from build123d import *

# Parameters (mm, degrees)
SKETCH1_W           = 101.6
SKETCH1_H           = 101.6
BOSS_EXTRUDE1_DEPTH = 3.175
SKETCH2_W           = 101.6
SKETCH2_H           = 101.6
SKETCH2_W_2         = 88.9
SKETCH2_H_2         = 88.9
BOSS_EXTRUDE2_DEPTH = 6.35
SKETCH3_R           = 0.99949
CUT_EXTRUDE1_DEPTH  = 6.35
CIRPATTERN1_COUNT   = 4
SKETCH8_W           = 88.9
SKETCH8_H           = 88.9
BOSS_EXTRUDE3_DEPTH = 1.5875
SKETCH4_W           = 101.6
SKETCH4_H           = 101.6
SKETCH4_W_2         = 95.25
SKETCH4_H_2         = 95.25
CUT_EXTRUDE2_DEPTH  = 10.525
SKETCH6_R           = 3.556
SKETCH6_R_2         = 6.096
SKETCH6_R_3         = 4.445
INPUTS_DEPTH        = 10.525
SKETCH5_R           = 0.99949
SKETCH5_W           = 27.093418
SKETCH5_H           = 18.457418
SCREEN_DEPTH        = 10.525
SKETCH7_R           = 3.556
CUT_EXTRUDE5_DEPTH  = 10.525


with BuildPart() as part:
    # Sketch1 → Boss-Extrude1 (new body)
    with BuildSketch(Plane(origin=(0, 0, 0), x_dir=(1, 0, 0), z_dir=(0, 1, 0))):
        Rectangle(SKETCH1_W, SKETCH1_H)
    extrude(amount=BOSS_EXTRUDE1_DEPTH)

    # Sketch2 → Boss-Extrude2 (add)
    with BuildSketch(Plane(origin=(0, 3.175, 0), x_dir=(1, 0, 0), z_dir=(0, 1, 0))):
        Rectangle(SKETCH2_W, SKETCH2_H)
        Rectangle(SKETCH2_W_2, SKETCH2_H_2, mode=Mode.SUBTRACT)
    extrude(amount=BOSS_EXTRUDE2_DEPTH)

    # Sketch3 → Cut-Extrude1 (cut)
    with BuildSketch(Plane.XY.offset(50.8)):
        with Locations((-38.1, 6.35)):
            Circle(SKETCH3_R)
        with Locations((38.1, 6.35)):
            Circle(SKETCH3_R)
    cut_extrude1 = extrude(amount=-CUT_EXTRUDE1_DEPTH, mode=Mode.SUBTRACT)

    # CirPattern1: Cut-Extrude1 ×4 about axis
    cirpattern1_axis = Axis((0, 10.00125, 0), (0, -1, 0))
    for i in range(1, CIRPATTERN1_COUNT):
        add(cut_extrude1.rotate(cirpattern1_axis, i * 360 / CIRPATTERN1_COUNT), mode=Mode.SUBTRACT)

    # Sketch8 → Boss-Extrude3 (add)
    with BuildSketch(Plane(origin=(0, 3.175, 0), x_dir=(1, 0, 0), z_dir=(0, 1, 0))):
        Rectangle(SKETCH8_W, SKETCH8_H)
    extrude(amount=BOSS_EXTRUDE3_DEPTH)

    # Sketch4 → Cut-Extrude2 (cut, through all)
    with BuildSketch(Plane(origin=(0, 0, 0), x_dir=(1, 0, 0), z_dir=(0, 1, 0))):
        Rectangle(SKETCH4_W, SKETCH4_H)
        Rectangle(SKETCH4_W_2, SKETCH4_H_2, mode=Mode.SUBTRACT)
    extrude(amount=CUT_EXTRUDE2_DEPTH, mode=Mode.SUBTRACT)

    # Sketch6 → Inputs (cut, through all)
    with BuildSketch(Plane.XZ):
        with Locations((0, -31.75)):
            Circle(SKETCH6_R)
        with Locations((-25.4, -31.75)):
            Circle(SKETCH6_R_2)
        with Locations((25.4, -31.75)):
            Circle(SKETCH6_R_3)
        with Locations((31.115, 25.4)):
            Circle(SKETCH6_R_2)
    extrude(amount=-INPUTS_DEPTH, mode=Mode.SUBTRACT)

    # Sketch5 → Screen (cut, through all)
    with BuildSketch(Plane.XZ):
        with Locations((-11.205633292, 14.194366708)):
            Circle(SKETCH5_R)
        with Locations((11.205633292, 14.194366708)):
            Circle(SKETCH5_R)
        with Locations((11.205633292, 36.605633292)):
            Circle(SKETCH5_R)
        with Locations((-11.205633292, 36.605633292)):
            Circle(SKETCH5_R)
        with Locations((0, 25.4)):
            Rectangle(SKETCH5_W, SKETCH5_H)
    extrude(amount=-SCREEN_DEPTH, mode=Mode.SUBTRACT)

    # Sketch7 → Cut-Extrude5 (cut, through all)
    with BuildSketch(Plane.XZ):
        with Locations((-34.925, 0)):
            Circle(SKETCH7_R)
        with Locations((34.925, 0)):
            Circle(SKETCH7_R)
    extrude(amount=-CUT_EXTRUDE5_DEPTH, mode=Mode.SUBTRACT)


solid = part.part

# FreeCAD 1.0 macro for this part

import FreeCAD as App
import Part
import Sketcher
from FreeCAD import Vector
Q = App.Units.Quantity


def add_polygon(sketch, points):
    """Adds a closed chain of lines whose ends are joined by coincident constraints."""
    first, n = sketch.GeometryCount, len(points)
    for a, b in zip(points, points[1:] + points[:1]):
        sketch.addGeometry(Part.LineSegment(App.Vector(*a, 0), App.Vector(*b, 0)), False)
    for i in range(n):
        sketch.addConstraint(Sketcher.Constraint("Coincident", first + i, 2, first + (i + 1) % n, 1))

doc = App.newDocument("Part")
params = doc.addObject("Spreadsheet::Sheet", "Params")
for row, (alias, value) in enumerate([
    ("sketch1_width", "4 in"),
    ("pad1_length", "0.125 in"),
    ("sketch2_width", "4 in"),
    ("sketch2_width2", "3.5 in"),
    ("pad2_length", "0.25 in"),
    ("pocket1_length", "0.25 in"),
    ("sketch4_width", "3.5 in"),
    ("pad3_length", "0.0625 in"),
    ("sketch5_width", "4 in"),
    ("sketch5_width2", "3.75 in"),
    ("sketch6_diameter", "0.28 in"),
    ("sketch6_diameter2", "0.48 in"),
    ("sketch6_diameter3", "0.35 in"),
    ("sketch8_diameter", "0.28 in"),
], start=1):
    params.set(f"A{row}", alias)
    params.set(f"B{row}", "=" + value)
    params.setAlias(f"B{row}", alias)

body = doc.addObject("PartDesign::Body", "Body")

sketch1 = body.newObject("Sketcher::SketchObject", "Sketch")
sketch1.AttachmentSupport = (doc.getObject("XZ_Plane"), [""])
sketch1.MapMode = "FlatFace"
add_polygon(sketch1, [(-51, -51), (-51, 51), (51, 51), (51, -51)])
sketch1.addConstraint(Sketcher.Constraint("Vertical", 0))
sketch1.addConstraint(Sketcher.Constraint("Horizontal", 1))
sketch1.addConstraint(Sketcher.Constraint("Vertical", 2))
sketch1.addConstraint(Sketcher.Constraint("Horizontal", 3))
sketch1.addConstraint(Sketcher.Constraint("Symmetric", 0, 2, 2, 2, -1, 1))
sketch1.addConstraint(Sketcher.Constraint("Equal", 3, 0))
sketch1.addConstraint(Sketcher.Constraint("DistanceX", 1, 1, 1, 2, Q("4 in")))
sketch1.setExpression("Constraints[10]", "Params.sketch1_width")
pad1 = body.newObject("PartDesign::Pad", "Pad")
pad1.Profile = sketch1
pad1.setExpression("Length", "Params.pad1_length")
pad1.Reversed = True

sketch2 = body.newObject("Sketcher::SketchObject", "Sketch001")
sketch2.AttachmentSupport = (doc.getObject("XZ_Plane"), [""])
sketch2.MapMode = "FlatFace"
sketch2.AttachmentOffset = App.Placement(Vector(0, 0, -0.125 * 25.4), App.Rotation())
add_polygon(sketch2, [(-51, -51), (-51, 51), (51, 51), (51, -51)])
add_polygon(sketch2, [(44, 44), (-44, 44), (-44, -44), (44, -44)])
sketch2.addConstraint(Sketcher.Constraint("Vertical", 0))
sketch2.addConstraint(Sketcher.Constraint("Horizontal", 1))
sketch2.addConstraint(Sketcher.Constraint("Vertical", 2))
sketch2.addConstraint(Sketcher.Constraint("Horizontal", 3))
sketch2.addConstraint(Sketcher.Constraint("Horizontal", 4))
sketch2.addConstraint(Sketcher.Constraint("Vertical", 5))
sketch2.addConstraint(Sketcher.Constraint("Horizontal", 6))
sketch2.addConstraint(Sketcher.Constraint("Vertical", 7))
sketch2.addConstraint(Sketcher.Constraint("Symmetric", 0, 2, 2, 2, -1, 1))
sketch2.addConstraint(Sketcher.Constraint("Symmetric", 4, 2, 6, 2, -1, 1))
sketch2.addConstraint(Sketcher.Constraint("Equal", 3, 0))
sketch2.addConstraint(Sketcher.Constraint("Equal", 6, 5))
sketch2.addConstraint(Sketcher.Constraint("DistanceX", 1, 1, 1, 2, Q("4 in")))
sketch2.addConstraint(Sketcher.Constraint("DistanceX", 4, 2, 4, 1, Q("3.5 in")))
sketch2.setExpression("Constraints[20]", "Params.sketch2_width")
sketch2.setExpression("Constraints[21]", "Params.sketch2_width2")
pad2 = body.newObject("PartDesign::Pad", "Pad001")
pad2.Profile = sketch2
pad2.setExpression("Length", "Params.pad2_length")
pad2.Reversed = True

sketch3 = body.newObject("Sketcher::SketchObject", "Sketch002")
sketch3.AttachmentSupport = (doc.getObject("XY_Plane"), [""])
sketch3.MapMode = "FlatFace"
sketch3.AttachmentOffset = App.Placement(Vector(0, 0, 2 * 25.4), App.Rotation())
sketch3.addGeometry(Part.Circle(Vector(-38.1, 6.3, 0), Vector(0, 0, 1), 1), False)
sketch3.addGeometry(Part.Circle(Vector(38.1, 6.3, 0), Vector(0, 0, 1), 1), False)
sketch3.addConstraint(Sketcher.Constraint("Equal", 0, 1))
sketch3.addConstraint(Sketcher.Constraint("Symmetric", 0, 3, 1, 3, -2))
sketch3.addConstraint(Sketcher.Constraint("DistanceX", 0, 3, 1, 3, Q("3 in")))
sketch3.addConstraint(Sketcher.Constraint("Diameter", 0, Q("0.0787 in")))
sketch3.addConstraint(Sketcher.Constraint("DistanceY", -1, 1, 0, 3, Q("0.25 in")))
pocket1 = body.newObject("PartDesign::Pocket", "Pocket")
pocket1.Profile = sketch3
pocket1.setExpression("Length", "Params.pocket1_length")
doc.recompute()

polarpattern = body.newObject("PartDesign::PolarPattern", "PolarPattern")
polarpattern.Originals = [pocket1]
polarpattern.Axis = (doc.getObject("Y_Axis"), [""])
polarpattern.Angle = 360
polarpattern.Occurrences = 4
body.Tip = polarpattern

sketch4 = body.newObject("Sketcher::SketchObject", "Sketch003")
sketch4.AttachmentSupport = (doc.getObject("XZ_Plane"), [""])
sketch4.MapMode = "FlatFace"
sketch4.AttachmentOffset = App.Placement(Vector(0, 0, -0.125 * 25.4), App.Rotation())
add_polygon(sketch4, [(-44, -44), (-44, 44), (44, 44), (44, -44)])
sketch4.addConstraint(Sketcher.Constraint("Vertical", 0))
sketch4.addConstraint(Sketcher.Constraint("Horizontal", 1))
sketch4.addConstraint(Sketcher.Constraint("Vertical", 2))
sketch4.addConstraint(Sketcher.Constraint("Horizontal", 3))
sketch4.addConstraint(Sketcher.Constraint("Symmetric", 0, 2, 2, 2, -1, 1))
sketch4.addConstraint(Sketcher.Constraint("Equal", 3, 0))
sketch4.addConstraint(Sketcher.Constraint("DistanceX", 1, 1, 1, 2, Q("3.5 in")))
sketch4.setExpression("Constraints[10]", "Params.sketch4_width")
pad3 = body.newObject("PartDesign::Pad", "Pad002")
pad3.Profile = sketch4
pad3.setExpression("Length", "Params.pad3_length")
pad3.Reversed = True

sketch5 = body.newObject("Sketcher::SketchObject", "Sketch004")
sketch5.AttachmentSupport = (doc.getObject("XZ_Plane"), [""])
sketch5.MapMode = "FlatFace"
add_polygon(sketch5, [(-51, -51), (-51, 51), (51, 51), (51, -51)])
add_polygon(sketch5, [(48, 48), (-48, 48), (-48, -48), (48, -48)])
sketch5.addConstraint(Sketcher.Constraint("Vertical", 0))
sketch5.addConstraint(Sketcher.Constraint("Horizontal", 1))
sketch5.addConstraint(Sketcher.Constraint("Vertical", 2))
sketch5.addConstraint(Sketcher.Constraint("Horizontal", 3))
sketch5.addConstraint(Sketcher.Constraint("Horizontal", 4))
sketch5.addConstraint(Sketcher.Constraint("Vertical", 5))
sketch5.addConstraint(Sketcher.Constraint("Horizontal", 6))
sketch5.addConstraint(Sketcher.Constraint("Vertical", 7))
sketch5.addConstraint(Sketcher.Constraint("Symmetric", 0, 2, 2, 2, -1, 1))
sketch5.addConstraint(Sketcher.Constraint("Symmetric", 4, 2, 6, 2, -1, 1))
sketch5.addConstraint(Sketcher.Constraint("Equal", 3, 0))
sketch5.addConstraint(Sketcher.Constraint("Equal", 6, 5))
sketch5.addConstraint(Sketcher.Constraint("DistanceX", 1, 1, 1, 2, Q("4 in")))
sketch5.addConstraint(Sketcher.Constraint("DistanceX", 4, 2, 4, 1, Q("3.75 in")))
sketch5.setExpression("Constraints[20]", "Params.sketch5_width")
sketch5.setExpression("Constraints[21]", "Params.sketch5_width2")
pocket2 = body.newObject("PartDesign::Pocket", "Pocket001")
pocket2.Profile = sketch5
pocket2.Type = "ThroughAll"

sketch6 = body.newObject("Sketcher::SketchObject", "Sketch005")
sketch6.AttachmentSupport = (doc.getObject("XZ_Plane"), [""])
sketch6.MapMode = "FlatFace"
sketch6.addGeometry(Part.Circle(Vector(0, -31.8, 0), Vector(0, 0, 1), 3.6), False)
sketch6.addGeometry(Part.Circle(Vector(-25.4, -31.8, 0), Vector(0, 0, 1), 6.1), False)
sketch6.addGeometry(Part.Circle(Vector(25.4, -31.8, 0), Vector(0, 0, 1), 4.4), False)
sketch6.addGeometry(Part.Circle(Vector(31.1, 25.4, 0), Vector(0, 0, 1), 6.1), False)
sketch6.addConstraint(Sketcher.Constraint("Equal", 1, 3))
sketch6.addConstraint(Sketcher.Constraint("Symmetric", 1, 3, 2, 3, -2))
sketch6.addConstraint(Sketcher.Constraint("PointOnObject", 0, 3, -2))
sketch6.addConstraint(Sketcher.Constraint("Horizontal", 0, 3, 1, 3))
sketch6.addConstraint(Sketcher.Constraint("Diameter", 0, Q("0.28 in")))
sketch6.addConstraint(Sketcher.Constraint("Diameter", 1, Q("0.48 in")))
sketch6.addConstraint(Sketcher.Constraint("Diameter", 2, Q("0.35 in")))
sketch6.addConstraint(Sketcher.Constraint("DistanceX", 1, 3, -1, 1, Q("1 in")))
sketch6.addConstraint(Sketcher.Constraint("DistanceY", -1, 1, 3, 3, Q("1 in")))
sketch6.addConstraint(Sketcher.Constraint("DistanceY", 0, 3, -1, 1, Q("1.25 in")))
sketch6.addConstraint(Sketcher.Constraint("DistanceX", -1, 1, 3, 3, Q("1.225 in")))
sketch6.setExpression("Constraints[4]", "Params.sketch6_diameter")
sketch6.setExpression("Constraints[5]", "Params.sketch6_diameter2")
sketch6.setExpression("Constraints[6]", "Params.sketch6_diameter3")
pocket3 = body.newObject("PartDesign::Pocket", "Pocket002")
pocket3.Profile = sketch6
pocket3.Type = "ThroughAll"

sketch7 = body.newObject("Sketcher::SketchObject", "Sketch006")
sketch7.AttachmentSupport = (doc.getObject("XZ_Plane"), [""])
sketch7.MapMode = "FlatFace"
sketch7.addGeometry(Part.Circle(Vector(-11.2, 14.2, 0), Vector(0, 0, 1), 1), False)
sketch7.addGeometry(Part.Circle(Vector(11.2, 14.2, 0), Vector(0, 0, 1), 1), False)
sketch7.addGeometry(Part.Circle(Vector(11.2, 36.6, 0), Vector(0, 0, 1), 1), False)
sketch7.addGeometry(Part.Circle(Vector(-11.2, 36.6, 0), Vector(0, 0, 1), 1), False)
add_polygon(sketch7, [(-13.5, 34.6), (-13.5, 16.2), (13.5, 16.2), (13.5, 34.6)])
sketch7.addConstraint(Sketcher.Constraint("Vertical", 4))
sketch7.addConstraint(Sketcher.Constraint("Horizontal", 5))
sketch7.addConstraint(Sketcher.Constraint("Vertical", 6))
sketch7.addConstraint(Sketcher.Constraint("Horizontal", 7))
sketch7.addConstraint(Sketcher.Constraint("Equal", 0, 1))
sketch7.addConstraint(Sketcher.Constraint("Equal", 1, 2))
sketch7.addConstraint(Sketcher.Constraint("Equal", 2, 3))
sketch7.addConstraint(Sketcher.Constraint("Symmetric", 0, 3, 1, 3, -2))
sketch7.addConstraint(Sketcher.Constraint("Symmetric", 2, 3, 3, 3, -2))
sketch7.addConstraint(Sketcher.Constraint("Vertical", 1, 3, 2, 3))
sketch7.addConstraint(Sketcher.Constraint("Diameter", 0, Q("0.0787 in")))
sketch7.addConstraint(Sketcher.Constraint("DistanceX", 5, 1, 5, 2, Q("27.093418 mm")))
sketch7.addConstraint(Sketcher.Constraint("DistanceY", 4, 2, 4, 1, Q("18.457418 mm")))
sketch7.addConstraint(Sketcher.Constraint("DistanceX", 4, 2, -1, 1, Q("13.546709 mm")))
sketch7.addConstraint(Sketcher.Constraint("DistanceY", -1, 1, 4, 2, Q("16.171291 mm")))
sketch7.addConstraint(Sketcher.Constraint("DistanceX", 0, 3, -1, 1, Q("11.205633 mm")))
sketch7.addConstraint(Sketcher.Constraint("DistanceY", -1, 1, 0, 3, Q("14.194367 mm")))
sketch7.addConstraint(Sketcher.Constraint("DistanceY", -1, 1, 2, 3, Q("36.605633 mm")))
pocket4 = body.newObject("PartDesign::Pocket", "Pocket003")
pocket4.Profile = sketch7
pocket4.Type = "ThroughAll"

sketch8 = body.newObject("Sketcher::SketchObject", "Sketch007")
sketch8.AttachmentSupport = (doc.getObject("XZ_Plane"), [""])
sketch8.MapMode = "FlatFace"
sketch8.addGeometry(Part.Circle(Vector(-34.9, 0, 0), Vector(0, 0, 1), 3.6), False)
sketch8.addGeometry(Part.Circle(Vector(34.9, 0, 0), Vector(0, 0, 1), 3.6), False)
sketch8.addConstraint(Sketcher.Constraint("Equal", 0, 1))
sketch8.addConstraint(Sketcher.Constraint("Symmetric", 0, 3, 1, 3, -1, 1))
sketch8.addConstraint(Sketcher.Constraint("PointOnObject", 0, 3, -1))
sketch8.addConstraint(Sketcher.Constraint("Diameter", 0, Q("0.28 in")))
sketch8.addConstraint(Sketcher.Constraint("DistanceX", 0, 3, 1, 3, Q("2.75 in")))
sketch8.setExpression("Constraints[3]", "Params.sketch8_diameter")
pocket5 = body.newObject("PartDesign::Pocket", "Pocket004")
pocket5.Profile = sketch8
pocket5.Type = "ThroughAll"

doc.recompute()
